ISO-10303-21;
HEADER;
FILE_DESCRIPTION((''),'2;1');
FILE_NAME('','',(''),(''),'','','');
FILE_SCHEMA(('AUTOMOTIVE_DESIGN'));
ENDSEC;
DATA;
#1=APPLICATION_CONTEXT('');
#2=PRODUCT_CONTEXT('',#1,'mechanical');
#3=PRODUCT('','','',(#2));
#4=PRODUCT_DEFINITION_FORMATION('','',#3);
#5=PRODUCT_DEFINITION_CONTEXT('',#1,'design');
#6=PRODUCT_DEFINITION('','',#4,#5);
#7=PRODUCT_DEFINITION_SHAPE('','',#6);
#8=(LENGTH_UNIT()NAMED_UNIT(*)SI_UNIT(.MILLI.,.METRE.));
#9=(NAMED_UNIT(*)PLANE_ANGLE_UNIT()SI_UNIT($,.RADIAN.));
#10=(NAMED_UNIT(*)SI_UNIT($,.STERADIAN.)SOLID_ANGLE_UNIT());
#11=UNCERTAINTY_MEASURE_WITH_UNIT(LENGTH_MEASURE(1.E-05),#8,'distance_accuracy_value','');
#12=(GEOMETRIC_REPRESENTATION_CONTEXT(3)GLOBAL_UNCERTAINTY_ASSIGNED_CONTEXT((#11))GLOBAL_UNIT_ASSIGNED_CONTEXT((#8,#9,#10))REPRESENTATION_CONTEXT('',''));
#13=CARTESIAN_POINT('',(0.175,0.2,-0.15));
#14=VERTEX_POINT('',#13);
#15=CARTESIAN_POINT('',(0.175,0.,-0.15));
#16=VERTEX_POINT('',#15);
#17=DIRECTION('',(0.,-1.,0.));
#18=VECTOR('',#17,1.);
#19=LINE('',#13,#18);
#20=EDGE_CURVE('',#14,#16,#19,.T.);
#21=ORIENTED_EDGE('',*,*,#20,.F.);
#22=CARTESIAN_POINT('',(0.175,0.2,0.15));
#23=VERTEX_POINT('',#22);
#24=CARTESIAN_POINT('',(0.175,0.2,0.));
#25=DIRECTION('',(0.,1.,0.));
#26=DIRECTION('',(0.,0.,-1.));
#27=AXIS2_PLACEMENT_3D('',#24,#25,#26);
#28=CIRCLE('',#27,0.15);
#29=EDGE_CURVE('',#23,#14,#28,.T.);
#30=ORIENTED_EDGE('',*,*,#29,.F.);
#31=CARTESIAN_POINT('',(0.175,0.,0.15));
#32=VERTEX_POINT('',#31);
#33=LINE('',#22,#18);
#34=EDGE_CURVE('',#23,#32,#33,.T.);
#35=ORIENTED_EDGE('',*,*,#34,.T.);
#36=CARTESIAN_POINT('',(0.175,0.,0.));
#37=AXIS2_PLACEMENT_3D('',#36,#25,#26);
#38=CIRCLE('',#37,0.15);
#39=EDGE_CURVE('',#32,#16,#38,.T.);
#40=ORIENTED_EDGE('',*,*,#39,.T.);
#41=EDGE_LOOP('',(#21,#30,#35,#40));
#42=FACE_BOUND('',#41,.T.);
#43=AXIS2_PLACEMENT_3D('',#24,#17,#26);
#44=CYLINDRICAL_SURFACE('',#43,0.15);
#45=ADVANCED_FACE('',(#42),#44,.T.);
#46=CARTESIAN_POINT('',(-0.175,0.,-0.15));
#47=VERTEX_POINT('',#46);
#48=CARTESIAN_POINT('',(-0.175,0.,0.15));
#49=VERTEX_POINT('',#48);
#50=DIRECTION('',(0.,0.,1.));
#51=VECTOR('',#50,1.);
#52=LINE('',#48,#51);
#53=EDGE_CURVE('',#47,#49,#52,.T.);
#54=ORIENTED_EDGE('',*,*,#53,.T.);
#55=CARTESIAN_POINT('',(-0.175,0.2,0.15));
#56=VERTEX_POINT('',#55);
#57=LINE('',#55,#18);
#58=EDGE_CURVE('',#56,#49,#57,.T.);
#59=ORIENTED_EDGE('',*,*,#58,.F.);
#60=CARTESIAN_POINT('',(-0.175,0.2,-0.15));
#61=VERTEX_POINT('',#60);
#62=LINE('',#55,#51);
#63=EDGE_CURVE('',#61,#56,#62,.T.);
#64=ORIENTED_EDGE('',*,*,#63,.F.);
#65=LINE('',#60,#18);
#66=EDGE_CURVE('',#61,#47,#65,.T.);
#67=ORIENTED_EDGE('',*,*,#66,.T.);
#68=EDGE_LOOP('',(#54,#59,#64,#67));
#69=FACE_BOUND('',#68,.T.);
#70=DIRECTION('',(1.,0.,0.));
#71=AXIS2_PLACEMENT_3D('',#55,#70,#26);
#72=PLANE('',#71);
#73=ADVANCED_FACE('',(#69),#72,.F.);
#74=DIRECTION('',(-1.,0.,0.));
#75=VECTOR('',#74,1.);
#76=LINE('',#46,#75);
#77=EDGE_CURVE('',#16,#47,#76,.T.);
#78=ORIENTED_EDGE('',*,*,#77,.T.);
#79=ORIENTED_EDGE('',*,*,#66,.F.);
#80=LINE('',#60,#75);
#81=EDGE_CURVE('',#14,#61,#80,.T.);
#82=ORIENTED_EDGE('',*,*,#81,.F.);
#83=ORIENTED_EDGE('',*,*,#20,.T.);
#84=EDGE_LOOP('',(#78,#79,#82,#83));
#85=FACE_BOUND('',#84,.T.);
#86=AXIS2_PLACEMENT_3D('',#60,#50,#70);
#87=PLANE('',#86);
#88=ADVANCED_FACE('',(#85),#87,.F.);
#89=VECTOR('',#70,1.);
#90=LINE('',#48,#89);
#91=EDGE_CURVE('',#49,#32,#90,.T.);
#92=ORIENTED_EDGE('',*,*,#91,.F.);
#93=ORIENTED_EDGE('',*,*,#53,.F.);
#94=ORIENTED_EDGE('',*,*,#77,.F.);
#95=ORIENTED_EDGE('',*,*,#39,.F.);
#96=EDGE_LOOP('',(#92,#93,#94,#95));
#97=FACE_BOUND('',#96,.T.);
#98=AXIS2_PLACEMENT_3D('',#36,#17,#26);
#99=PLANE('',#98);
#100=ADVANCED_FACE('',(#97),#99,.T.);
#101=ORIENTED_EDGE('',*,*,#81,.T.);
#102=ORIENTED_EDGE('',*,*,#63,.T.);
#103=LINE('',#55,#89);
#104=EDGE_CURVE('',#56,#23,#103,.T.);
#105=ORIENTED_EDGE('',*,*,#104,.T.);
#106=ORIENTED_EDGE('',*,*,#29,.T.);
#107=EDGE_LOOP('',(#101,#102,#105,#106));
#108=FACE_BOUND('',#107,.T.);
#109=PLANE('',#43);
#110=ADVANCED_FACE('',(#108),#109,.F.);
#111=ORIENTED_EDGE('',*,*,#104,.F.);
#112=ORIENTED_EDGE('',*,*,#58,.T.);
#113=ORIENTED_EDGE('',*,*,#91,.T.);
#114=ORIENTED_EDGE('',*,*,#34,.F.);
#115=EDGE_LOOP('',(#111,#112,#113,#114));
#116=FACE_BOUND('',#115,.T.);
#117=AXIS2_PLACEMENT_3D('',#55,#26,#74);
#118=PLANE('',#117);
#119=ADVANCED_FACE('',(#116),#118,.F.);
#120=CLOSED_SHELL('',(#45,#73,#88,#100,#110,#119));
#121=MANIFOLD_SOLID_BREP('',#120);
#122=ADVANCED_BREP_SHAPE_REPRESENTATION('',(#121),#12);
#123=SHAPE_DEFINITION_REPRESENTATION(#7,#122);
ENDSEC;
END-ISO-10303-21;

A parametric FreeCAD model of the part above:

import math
import FreeCAD as App
import Part
import Sketcher

doc = App.newDocument("Part")
body = doc.addObject("PartDesign::Body", "Body")

# Sketch on XZ plane
sketch1 = body.newObject("Sketcher::SketchObject", "Sketch")
sketch1.AttachmentSupport = (doc.getObject("XZ_Plane"), [""])
sketch1.MapMode = "FlatFace"
sketch1.addGeometry([
    Part.LineSegment(App.Vector(-0.175, 0.15, 0), App.Vector(0.175, 0.15, 0)),
    Part.ArcOfCircle(Part.Circle(App.Vector(0.175, 0, 0), App.Vector(0, 0, 1), 0.15), math.radians(-90), math.radians(90)),
    Part.LineSegment(App.Vector(0.175, -0.15, 0), App.Vector(-0.175, -0.15, 0)),
    Part.LineSegment(App.Vector(-0.175, -0.15, 0), App.Vector(-0.175, 0.15, 0)),
], False)
sketch1.addConstraint([
    Sketcher.Constraint("Tangent", 0, 2, 1, 2),
    Sketcher.Constraint("Tangent", 1, 1, 2, 1),
    Sketcher.Constraint("Coincident", 2, 2, 3, 1),
    Sketcher.Constraint("Coincident", 3, 2, 0, 1),
    Sketcher.Constraint("Horizontal", 0),
    Sketcher.Constraint("Horizontal", 2),
    Sketcher.Constraint("Vertical", 3),
    Sketcher.Constraint("Symmetric", 0, 2, 2, 2, -1, 1),
    Sketcher.Constraint("Radius", 1, 0.15),
    Sketcher.Constraint("DistanceX", 0, 1, 0, 2, 0.35),
])
pad1 = body.newObject("PartDesign::Pad", "Pad")
pad1.Profile = sketch1
pad1.Length = 0.2
pad1.Reversed = True

doc.recompute()
